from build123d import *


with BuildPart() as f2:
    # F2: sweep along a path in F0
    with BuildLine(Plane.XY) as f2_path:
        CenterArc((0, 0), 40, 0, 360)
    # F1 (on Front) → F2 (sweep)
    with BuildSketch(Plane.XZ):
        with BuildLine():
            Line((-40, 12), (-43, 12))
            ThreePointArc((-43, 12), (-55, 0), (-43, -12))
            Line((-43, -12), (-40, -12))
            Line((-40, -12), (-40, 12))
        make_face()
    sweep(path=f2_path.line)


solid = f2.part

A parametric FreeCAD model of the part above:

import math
import FreeCAD as App
import Part
import Sketcher

doc = App.newDocument("Part")
body = doc.addObject("PartDesign::Body", "Body")

# Sketch on XZ plane
sketch1 = body.newObject("Sketcher::SketchObject", "Sketch")
sketch1.AttachmentSupport = (doc.getObject("XZ_Plane"), [""])
sketch1.MapMode = "FlatFace"
sketch1.addGeometry(Part.LineSegment(App.Vector(-40, 12, 0), App.Vector(-43, 12, 0)), False)
sketch1.addGeometry(Part.ArcOfCircle(Part.Circle(App.Vector(-43, 0, 0), App.Vector(0, 0, 1), 12), math.radians(90), math.radians(270)), False)
sketch1.addGeometry(Part.LineSegment(App.Vector(-43, -12, 0), App.Vector(-40, -12, 0)), False)
sketch1.addGeometry(Part.LineSegment(App.Vector(-40, -12, 0), App.Vector(-40, 12, 0)), False)
sketch1.addConstraint(Sketcher.Constraint("Tangent", 0, 2, 1, 1))
sketch1.addConstraint(Sketcher.Constraint("Tangent", 1, 2, 2, 1))
sketch1.addConstraint(Sketcher.Constraint("Coincident", 2, 2, 3, 1))
sketch1.addConstraint(Sketcher.Constraint("Coincident", 3, 2, 0, 1))
sketch1.addConstraint(Sketcher.Constraint("Horizontal", 0))
sketch1.addConstraint(Sketcher.Constraint("Horizontal", 2))
sketch1.addConstraint(Sketcher.Constraint("Vertical", 3))
sketch1.addConstraint(Sketcher.Constraint("PointOnObject", 1, 3, -1))
sketch1.addConstraint(Sketcher.Constraint("Radius", 1, 12.0))
sketch1.addConstraint(Sketcher.Constraint("DistanceX", 0, 2, 0, 1, 3.0))
sketch1.addConstraint(Sketcher.Constraint("DistanceX", 1, 3, -1, 1, 43.0))

# Sketch on XY plane
sketch2 = body.newObject("Sketcher::SketchObject", "Sketch001")
sketch2.AttachmentSupport = (doc.getObject("XY_Plane"), [""])
sketch2.MapMode = "FlatFace"
sketch2.addGeometry(Part.Circle(App.Vector(0, 0, 0), App.Vector(0, 0, 1), 40), False)
sketch2.addConstraint(Sketcher.Constraint("Coincident", 0, 3, -1, 1))
sketch2.addConstraint(Sketcher.Constraint("Diameter", 0, 80.0))
doc.recompute()

additivepipe = body.newObject("PartDesign::AdditivePipe", "AdditivePipe")
additivepipe.Profile = sketch1
additivepipe.Spine = (sketch2, ["Edge1"])

doc.recompute()
